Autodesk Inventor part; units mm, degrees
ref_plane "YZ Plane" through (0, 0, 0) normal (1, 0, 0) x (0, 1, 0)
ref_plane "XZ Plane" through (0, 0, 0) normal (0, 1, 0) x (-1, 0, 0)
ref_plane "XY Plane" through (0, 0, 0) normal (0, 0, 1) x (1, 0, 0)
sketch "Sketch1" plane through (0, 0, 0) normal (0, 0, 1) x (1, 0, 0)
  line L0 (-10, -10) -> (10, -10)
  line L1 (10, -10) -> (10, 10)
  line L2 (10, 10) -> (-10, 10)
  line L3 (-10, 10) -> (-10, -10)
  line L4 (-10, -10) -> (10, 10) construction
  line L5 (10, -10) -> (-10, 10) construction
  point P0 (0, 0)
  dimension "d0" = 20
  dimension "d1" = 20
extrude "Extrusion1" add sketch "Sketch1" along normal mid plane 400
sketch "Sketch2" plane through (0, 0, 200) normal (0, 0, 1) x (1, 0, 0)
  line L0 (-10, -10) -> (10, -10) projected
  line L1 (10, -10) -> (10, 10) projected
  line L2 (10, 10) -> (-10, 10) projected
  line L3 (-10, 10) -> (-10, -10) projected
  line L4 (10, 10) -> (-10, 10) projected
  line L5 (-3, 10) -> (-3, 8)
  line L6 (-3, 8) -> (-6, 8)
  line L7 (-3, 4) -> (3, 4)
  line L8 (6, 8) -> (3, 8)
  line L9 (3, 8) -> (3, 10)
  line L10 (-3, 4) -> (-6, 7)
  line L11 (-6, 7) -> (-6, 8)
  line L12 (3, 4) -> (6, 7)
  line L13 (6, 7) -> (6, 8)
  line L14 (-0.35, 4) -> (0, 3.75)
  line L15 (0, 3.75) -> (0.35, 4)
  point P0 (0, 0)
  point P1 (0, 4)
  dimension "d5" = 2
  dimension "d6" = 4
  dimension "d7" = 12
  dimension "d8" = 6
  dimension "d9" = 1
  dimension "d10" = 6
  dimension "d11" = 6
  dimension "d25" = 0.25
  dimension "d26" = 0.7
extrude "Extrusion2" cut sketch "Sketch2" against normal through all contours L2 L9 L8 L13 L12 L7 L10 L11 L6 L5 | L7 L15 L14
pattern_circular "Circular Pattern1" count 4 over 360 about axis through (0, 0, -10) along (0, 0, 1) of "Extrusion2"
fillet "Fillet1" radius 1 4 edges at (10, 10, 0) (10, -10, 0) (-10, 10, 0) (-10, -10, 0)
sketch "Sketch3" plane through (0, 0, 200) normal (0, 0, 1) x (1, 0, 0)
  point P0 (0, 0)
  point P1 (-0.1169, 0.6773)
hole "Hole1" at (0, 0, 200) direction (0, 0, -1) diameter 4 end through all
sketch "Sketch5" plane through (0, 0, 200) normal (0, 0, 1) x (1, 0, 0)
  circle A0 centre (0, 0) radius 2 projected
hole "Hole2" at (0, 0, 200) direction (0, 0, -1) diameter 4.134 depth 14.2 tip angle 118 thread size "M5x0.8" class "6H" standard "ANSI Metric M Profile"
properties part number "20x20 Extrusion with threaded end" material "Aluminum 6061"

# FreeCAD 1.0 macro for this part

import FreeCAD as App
import Part
import Sketcher
from FreeCAD import Vector


def edges_at(feature, points):
    """Names of the edges that pass closest to the given points."""
    edges = feature.Shape.Edges
    near = lambda p: min(range(len(edges)), key=lambda i: edges[i].distToShape(Part.Vertex(*p))[0])
    return sorted({f"Edge{near(p) + 1}" for p in points})


def add_polygon(sketch, points):
    """Adds a closed chain of lines whose ends are joined by coincident constraints."""
    first, n = sketch.GeometryCount, len(points)
    for a, b in zip(points, points[1:] + points[:1]):
        sketch.addGeometry(Part.LineSegment(App.Vector(*a, 0), App.Vector(*b, 0)), False)
    for i in range(n):
        sketch.addConstraint(Sketcher.Constraint("Coincident", first + i, 2, first + (i + 1) % n, 1))

doc = App.newDocument("Part")
params = doc.addObject("Spreadsheet::Sheet", "Params")
for row, (alias, value) in enumerate([
    ("sketch1_width", "20 mm"),
    ("pad1_length", "400 mm"),
    ("sketch2_width", "6 mm"),
    ("sketch2_height", "2 mm"),
    ("sketch2_height2", "1 mm"),
    ("fillet_radius", "1 mm"),
    ("sketch3_diameter", "4 mm"),
    ("hole_diameter", "4 mm"),
    ("hole2_diameter", "4.134 mm"),
    ("hole2_depth", "14.2 mm"),
], start=1):
    params.set(f"A{row}", alias)
    params.set(f"B{row}", "=" + value)
    params.setAlias(f"B{row}", alias)

body = doc.addObject("PartDesign::Body", "Body")

# Sketch on XY plane
sketch1 = body.newObject("Sketcher::SketchObject", "Sketch")
sketch1.AttachmentSupport = (doc.getObject("XY_Plane"), [""])
sketch1.MapMode = "FlatFace"
add_polygon(sketch1, [(-10, 10), (-10, -10), (10, -10), (10, 10)])  # lines 0-3
sketch1.addConstraint([
    Sketcher.Constraint("Vertical", 0),
    Sketcher.Constraint("Horizontal", 1),
    Sketcher.Constraint("Vertical", 2),
    Sketcher.Constraint("Horizontal", 3),
    Sketcher.Constraint("Symmetric", 0, 2, 2, 2, -1, 1),
    Sketcher.Constraint("Equal", 3, 0),
    Sketcher.Constraint("DistanceX", 1, 1, 1, 2, 20.0),
])
sketch1.setExpression("Constraints[10]", "Params.sketch1_width")
pad1 = body.newObject("PartDesign::Pad", "Pad")
pad1.Profile = sketch1
pad1.setExpression("Length", "Params.pad1_length")
pad1.Midplane = True

# Sketch on XY plane
sketch2 = body.newObject("Sketcher::SketchObject", "Sketch001")
sketch2.AttachmentSupport = (doc.getObject("XY_Plane"), [""])
sketch2.MapMode = "FlatFace"
sketch2.AttachmentOffset = App.Placement(Vector(0, 0, 200), App.Rotation())
add_polygon(sketch2, [(3, 10), (-3, 10), (-3, 8), (-6, 8), (-6, 7), (-3, 4), (-0.35, 4), (0, 3.75), (0.35, 4), (3, 4), (6, 7), (6, 8), (3, 8)])  # lines 0-12
sketch2.addConstraint([
    Sketcher.Constraint("Horizontal", 0),
    Sketcher.Constraint("Vertical", 1),
    Sketcher.Constraint("Horizontal", 2),
    Sketcher.Constraint("Vertical", 3),
    Sketcher.Constraint("Horizontal", 5),
    Sketcher.Constraint("Horizontal", 8),
    Sketcher.Constraint("Vertical", 10),
    Sketcher.Constraint("Horizontal", 11),
    Sketcher.Constraint("Vertical", 12),
    Sketcher.Constraint("Symmetric", 5, 2, 7, 2, -2),
    Sketcher.Constraint("Symmetric", 3, 2, 9, 2, -2),
    Sketcher.Constraint("Symmetric", 1, 2, 11, 2, -2),
    Sketcher.Constraint("PointOnObject", 6, 2, -2),
    Sketcher.Constraint("Perpendicular", 4, 9),
    Sketcher.Constraint("Vertical", 1, 2, 4, 2),
    Sketcher.Constraint("Vertical", 8, 2, 11, 2),
    Sketcher.Constraint("DistanceX", 0, 2, 0, 1, 6.0),
    Sketcher.Constraint("DistanceY", 1, 2, 1, 1, 2.0),
    Sketcher.Constraint("DistanceY", 3, 2, 3, 1, 1.0),
    Sketcher.Constraint("DistanceX", 2, 2, -1, 1, 6.0),
    Sketcher.Constraint("DistanceY", -1, 1, 4, 2, 4.0),
    Sketcher.Constraint("DistanceX", 5, 2, 7, 2, 0.7),
    Sketcher.Constraint("DistanceY", 6, 2, 5, 2, 0.25),
])
sketch2.setExpression("Constraints[29]", "Params.sketch2_width")
sketch2.setExpression("Constraints[30]", "Params.sketch2_height")
sketch2.setExpression("Constraints[31]", "Params.sketch2_height2")
pocket1 = body.newObject("PartDesign::Pocket", "Pocket")
pocket1.Profile = sketch2
pocket1.Type = "ThroughAll"
doc.recompute()

polarpattern = body.newObject("PartDesign::PolarPattern", "PolarPattern")
polarpattern.Originals = [pocket1]
polarpattern.Axis = (doc.getObject("Z_Axis"), [""])
polarpattern.Angle = 360
polarpattern.Occurrences = 4
body.Tip = polarpattern
doc.recompute()

fillet = body.newObject("PartDesign::Fillet", "Fillet")
fillet.Base = (polarpattern, edges_at(polarpattern, [
    (10, 10, 0),
    (10, -10, 0),
    (-10, 10, 0),
    (-10, -10, 0),
]))
fillet.setExpression("Radius", "Params.fillet_radius")

# Sketch on XY plane
sketch3 = body.newObject("Sketcher::SketchObject", "Sketch002")
sketch3.AttachmentSupport = (doc.getObject("XY_Plane"), [""])
sketch3.MapMode = "FlatFace"
sketch3.AttachmentOffset = App.Placement(Vector(0, 0, 200), App.Rotation())
sketch3.addGeometry(Part.Circle(Vector(0, 0, 0), Vector(0, 0, 1), 2), False)
sketch3.addConstraint([
    Sketcher.Constraint("Coincident", 0, 3, -1, 1),
    Sketcher.Constraint("Diameter", 0, 4.0),
])
sketch3.setExpression("Constraints[1]", "Params.sketch3_diameter")
doc.recompute()
hole = body.newObject("PartDesign::Hole", "Hole")
hole.Profile = sketch3
hole.ThreadType = "None"
hole.setExpression("Diameter", "Params.hole_diameter")
hole.DepthType = "ThroughAll"

# Sketch on XY plane
sketch4 = body.newObject("Sketcher::SketchObject", "Sketch003")
sketch4.AttachmentSupport = (doc.getObject("XY_Plane"), [""])
sketch4.MapMode = "FlatFace"
sketch4.AttachmentOffset = App.Placement(Vector(0, 0, 200), App.Rotation())
sketch4.addGeometry(Part.Circle(Vector(0, 0, 0), Vector(0, 0, 1), 2.067), False)
sketch4.addConstraint([
    Sketcher.Constraint("Coincident", 0, 3, -1, 1),
    Sketcher.Constraint("Diameter", 0, 4.134),
])
doc.recompute()
hole2 = body.newObject("PartDesign::Hole", "Hole001")
hole2.Profile = sketch4
hole2.ThreadType = "None"
hole2.setExpression("Diameter", "Params.hole2_diameter")
hole2.DepthType = "Dimension"
hole2.setExpression("Depth", "Params.hole2_depth")
hole2.DrillPoint = "Angled"
hole2.DrillPointAngle = 118

doc.recompute()
